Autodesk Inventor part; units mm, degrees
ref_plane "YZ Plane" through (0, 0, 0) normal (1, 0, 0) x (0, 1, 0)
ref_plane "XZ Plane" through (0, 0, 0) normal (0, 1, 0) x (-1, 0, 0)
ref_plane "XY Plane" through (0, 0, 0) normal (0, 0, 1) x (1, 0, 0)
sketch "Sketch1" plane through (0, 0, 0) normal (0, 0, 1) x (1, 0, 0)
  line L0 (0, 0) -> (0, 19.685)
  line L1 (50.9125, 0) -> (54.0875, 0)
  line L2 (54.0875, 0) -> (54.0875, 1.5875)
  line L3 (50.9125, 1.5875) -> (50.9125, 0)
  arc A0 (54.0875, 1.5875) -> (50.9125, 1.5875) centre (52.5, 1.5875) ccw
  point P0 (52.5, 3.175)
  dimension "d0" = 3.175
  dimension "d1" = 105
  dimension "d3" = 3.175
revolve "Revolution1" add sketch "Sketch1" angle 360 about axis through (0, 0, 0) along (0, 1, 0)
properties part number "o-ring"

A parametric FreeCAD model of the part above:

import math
import FreeCAD as App
import Part
import Sketcher
Q = App.Units.Quantity

doc = App.newDocument("Part")
params = doc.addObject("Spreadsheet::Sheet", "Params")
for row, (alias, value) in enumerate([
    ("sketch1_radius", "0.0625 in"),
    ("sketch1_height", "0.0625 in"),
    ("revolution_angle", "360 deg"),
], start=1):
    params.set(f"A{row}", alias)
    params.set(f"B{row}", "=" + value)
    params.setAlias(f"B{row}", alias)

body = doc.addObject("PartDesign::Body", "Body")

sketch1 = body.newObject("Sketcher::SketchObject", "Sketch")
sketch1.AttachmentSupport = (doc.getObject("XY_Plane"), [""])
sketch1.MapMode = "FlatFace"
sketch1.addGeometry([
    Part.LineSegment(App.Vector(50.9, 1.6, 0), App.Vector(50.9, 0, 0)),
    Part.LineSegment(App.Vector(50.9, 0, 0), App.Vector(54.1, 0, 0)),
    Part.LineSegment(App.Vector(54.1, 0, 0), App.Vector(54.1, 1.6, 0)),
    Part.ArcOfCircle(Part.Circle(App.Vector(52.5, 1.6, 0), App.Vector(0, 0, 1), 1.6), math.radians(0), math.radians(180)),
], False)
sketch1.addConstraint([
    Sketcher.Constraint("Coincident", 0, 2, 1, 1),
    Sketcher.Constraint("Coincident", 1, 2, 2, 1),
    Sketcher.Constraint("Tangent", 2, 2, 3, 1),
    Sketcher.Constraint("Tangent", 3, 2, 0, 1),
    Sketcher.Constraint("Vertical", 0),
    Sketcher.Constraint("Horizontal", 1),
    Sketcher.Constraint("Vertical", 2),
    Sketcher.Constraint("PointOnObject", 0, 2, -1),
    Sketcher.Constraint("Radius", 3, Q("0.0625 in")),
    Sketcher.Constraint("DistanceY", 0, 2, 0, 1, Q("0.0625 in")),
    Sketcher.Constraint("DistanceX", -1, 1, 3, 3, 52.5),
])
sketch1.setExpression("Constraints[8]", "Params.sketch1_radius")
sketch1.setExpression("Constraints[9]", "Params.sketch1_height")
revolution = body.newObject("PartDesign::Revolution", "Revolution")
revolution.Profile = sketch1
revolution.ReferenceAxis = (sketch1, ["V_Axis"])
revolution.setExpression("Angle", "Params.revolution_angle")

doc.recompute()
